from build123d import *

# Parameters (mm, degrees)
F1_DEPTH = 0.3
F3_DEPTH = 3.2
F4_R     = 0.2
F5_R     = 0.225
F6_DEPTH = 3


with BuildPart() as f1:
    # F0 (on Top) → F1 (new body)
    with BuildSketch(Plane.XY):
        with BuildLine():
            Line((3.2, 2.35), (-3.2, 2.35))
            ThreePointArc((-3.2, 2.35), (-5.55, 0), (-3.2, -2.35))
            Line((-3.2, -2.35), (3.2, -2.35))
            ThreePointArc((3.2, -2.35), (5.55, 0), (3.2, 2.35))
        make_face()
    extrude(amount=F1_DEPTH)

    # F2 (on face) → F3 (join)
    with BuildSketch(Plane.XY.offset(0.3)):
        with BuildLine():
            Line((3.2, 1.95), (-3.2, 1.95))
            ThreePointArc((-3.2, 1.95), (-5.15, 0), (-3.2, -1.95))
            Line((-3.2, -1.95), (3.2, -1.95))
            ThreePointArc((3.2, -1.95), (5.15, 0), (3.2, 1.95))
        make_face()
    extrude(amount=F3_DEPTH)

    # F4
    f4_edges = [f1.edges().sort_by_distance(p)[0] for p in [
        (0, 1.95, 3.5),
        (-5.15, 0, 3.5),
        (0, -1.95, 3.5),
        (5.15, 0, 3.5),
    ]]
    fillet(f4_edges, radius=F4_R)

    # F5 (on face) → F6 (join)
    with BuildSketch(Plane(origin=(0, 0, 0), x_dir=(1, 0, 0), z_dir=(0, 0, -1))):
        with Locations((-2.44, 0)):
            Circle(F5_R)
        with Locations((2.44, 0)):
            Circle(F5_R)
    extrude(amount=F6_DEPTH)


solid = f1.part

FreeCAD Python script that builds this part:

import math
import FreeCAD as App
import Part
import Sketcher
from FreeCAD import Vector


def edges_at(feature, points):
    """Names of the edges that pass closest to the given points."""
    edges = feature.Shape.Edges
    near = lambda p: min(range(len(edges)), key=lambda i: edges[i].distToShape(Part.Vertex(*p))[0])
    return sorted({f"Edge{near(p) + 1}" for p in points})

doc = App.newDocument("Part")
body = doc.addObject("PartDesign::Body", "Body")

sketch1 = body.newObject("Sketcher::SketchObject", "Sketch")
sketch1.AttachmentSupport = (doc.getObject("XY_Plane"), [""])
sketch1.MapMode = "FlatFace"
sketch1.addGeometry([
    Part.LineSegment(Vector(3.2, 2.4, 0), Vector(-3.2, 2.4, 0)),
    Part.ArcOfCircle(Part.Circle(Vector(-3.2, 0, 0), Vector(0, 0, 1), 2.4), math.radians(90), math.radians(270)),
    Part.LineSegment(Vector(-3.2, -2.4, 0), Vector(3.2, -2.4, 0)),
    Part.ArcOfCircle(Part.Circle(Vector(3.2, 0, 0), Vector(0, 0, 1), 2.4), math.radians(-90), math.radians(90)),
], False)
sketch1.addConstraint([
    Sketcher.Constraint("Tangent", 0, 2, 1, 1),
    Sketcher.Constraint("Tangent", 1, 2, 2, 1),
    Sketcher.Constraint("Tangent", 2, 2, 3, 1),
    Sketcher.Constraint("Tangent", 3, 2, 0, 1),
    Sketcher.Constraint("Horizontal", 0),
    Sketcher.Constraint("Horizontal", 2),
    Sketcher.Constraint("Symmetric", 1, 3, 3, 3, -1, 1),
    Sketcher.Constraint("Radius", 1, 2.35),
    Sketcher.Constraint("DistanceX", 0, 2, 0, 1, 6.4),
])
pad1 = body.newObject("PartDesign::Pad", "Pad")
pad1.Profile = sketch1
pad1.Length = 0.3

sketch2 = body.newObject("Sketcher::SketchObject", "Sketch001")
sketch2.AttachmentSupport = (doc.getObject("XY_Plane"), [""])
sketch2.MapMode = "FlatFace"
sketch2.AttachmentOffset = App.Placement(Vector(0, 0, 0.3), App.Rotation())
sketch2.addGeometry([
    Part.LineSegment(Vector(3.2, 1.9, 0), Vector(-3.2, 1.9, 0)),
    Part.ArcOfCircle(Part.Circle(Vector(-3.2, 0, 0), Vector(0, 0, 1), 1.9), math.radians(90), math.radians(270)),
    Part.LineSegment(Vector(-3.2, -1.9, 0), Vector(3.2, -1.9, 0)),
    Part.ArcOfCircle(Part.Circle(Vector(3.2, 0, 0), Vector(0, 0, 1), 1.9), math.radians(-90), math.radians(90)),
], False)
sketch2.addConstraint([
    Sketcher.Constraint("Tangent", 0, 2, 1, 1),
    Sketcher.Constraint("Tangent", 1, 2, 2, 1),
    Sketcher.Constraint("Tangent", 2, 2, 3, 1),
    Sketcher.Constraint("Tangent", 3, 2, 0, 1),
    Sketcher.Constraint("Horizontal", 0),
    Sketcher.Constraint("Horizontal", 2),
    Sketcher.Constraint("Symmetric", 1, 3, 3, 3, -1, 1),
    Sketcher.Constraint("Radius", 1, 1.95),
    Sketcher.Constraint("DistanceX", 0, 2, 0, 1, 6.4),
])
pad2 = body.newObject("PartDesign::Pad", "Pad001")
pad2.Profile = sketch2
pad2.Length = 3.2
doc.recompute()

fillet = body.newObject("PartDesign::Fillet", "Fillet")
fillet.Base = (pad2, edges_at(pad2, [
    (0, 1.95, 3.5),
    (-5.15, 0, 3.5),
    (0, -1.95, 3.5),
    (5.15, 0, 3.5),
]))
fillet.Radius = 0.2

sketch3 = body.newObject("Sketcher::SketchObject", "Sketch002")
sketch3.AttachmentSupport = (doc.getObject("XY_Plane"), [""])
sketch3.MapMode = "FlatFace"
sketch3.addGeometry([
    Part.Circle(Vector(-2.44, 0, 0), Vector(0, 0, 1), 0.23),
    Part.Circle(Vector(2.44, 0, 0), Vector(0, 0, 1), 0.23),
], False)
sketch3.addConstraint([
    Sketcher.Constraint("Equal", 0, 1),
    Sketcher.Constraint("Symmetric", 0, 3, 1, 3, -1, 1),
    Sketcher.Constraint("PointOnObject", 0, 3, -1),
    Sketcher.Constraint("Diameter", 0, 0.45),
    Sketcher.Constraint("DistanceX", 0, 3, -1, 1, 2.44),
])
pad3 = body.newObject("PartDesign::Pad", "Pad002")
pad3.Profile = sketch3
pad3.Length = 3
pad3.Reversed = True

doc.recompute()
